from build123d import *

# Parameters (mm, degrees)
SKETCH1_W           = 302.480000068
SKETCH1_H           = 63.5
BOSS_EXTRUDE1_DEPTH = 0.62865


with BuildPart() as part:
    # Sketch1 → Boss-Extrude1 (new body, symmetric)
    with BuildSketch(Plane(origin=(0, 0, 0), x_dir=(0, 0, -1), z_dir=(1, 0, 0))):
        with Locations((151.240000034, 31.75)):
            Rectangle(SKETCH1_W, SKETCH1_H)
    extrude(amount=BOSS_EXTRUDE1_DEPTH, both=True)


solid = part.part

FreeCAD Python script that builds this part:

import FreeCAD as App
import Part
import Sketcher
Q = App.Units.Quantity


def add_polygon(sketch, points):
    """Adds a closed chain of lines whose ends are joined by coincident constraints."""
    first, n = sketch.GeometryCount, len(points)
    for a, b in zip(points, points[1:] + points[:1]):
        sketch.addGeometry(Part.LineSegment(App.Vector(*a, 0), App.Vector(*b, 0)), False)
    for i in range(n):
        sketch.addConstraint(Sketcher.Constraint("Coincident", first + i, 2, first + (i + 1) % n, 1))

doc = App.newDocument("Part")
params = doc.addObject("Spreadsheet::Sheet", "Params")
for row, (alias, value) in enumerate([
    ("sketch1_width", "2.5 in"),
    ("pad1_length", "0.0495 in"),
], start=1):
    params.set(f"A{row}", alias)
    params.set(f"B{row}", "=" + value)
    params.setAlias(f"B{row}", alias)

body = doc.addObject("PartDesign::Body", "Body")

# Sketch on YZ plane
sketch1 = body.newObject("Sketcher::SketchObject", "Sketch")
sketch1.AttachmentSupport = (doc.getObject("YZ_Plane"), [""])
sketch1.MapMode = "FlatFace"
add_polygon(sketch1, [(64, 0), (0, 0), (0, -302), (64, -302)])  # lines 0-3
sketch1.addConstraint([
    Sketcher.Constraint("Horizontal", 0),
    Sketcher.Constraint("Vertical", 1),
    Sketcher.Constraint("Horizontal", 2),
    Sketcher.Constraint("Vertical", 3),
    Sketcher.Constraint("Coincident", 0, 2, -1, 1),
    Sketcher.Constraint("DistanceX", 0, 2, 0, 1, Q("2.5 in")),
    Sketcher.Constraint("DistanceY", 1, 2, 1, 1, 302.48),
])
sketch1.setExpression("Constraints[9]", "Params.sketch1_width")
pad1 = body.newObject("PartDesign::Pad", "Pad")
pad1.Profile = sketch1
pad1.setExpression("Length", "Params.pad1_length")
pad1.Midplane = True

doc.recompute()
